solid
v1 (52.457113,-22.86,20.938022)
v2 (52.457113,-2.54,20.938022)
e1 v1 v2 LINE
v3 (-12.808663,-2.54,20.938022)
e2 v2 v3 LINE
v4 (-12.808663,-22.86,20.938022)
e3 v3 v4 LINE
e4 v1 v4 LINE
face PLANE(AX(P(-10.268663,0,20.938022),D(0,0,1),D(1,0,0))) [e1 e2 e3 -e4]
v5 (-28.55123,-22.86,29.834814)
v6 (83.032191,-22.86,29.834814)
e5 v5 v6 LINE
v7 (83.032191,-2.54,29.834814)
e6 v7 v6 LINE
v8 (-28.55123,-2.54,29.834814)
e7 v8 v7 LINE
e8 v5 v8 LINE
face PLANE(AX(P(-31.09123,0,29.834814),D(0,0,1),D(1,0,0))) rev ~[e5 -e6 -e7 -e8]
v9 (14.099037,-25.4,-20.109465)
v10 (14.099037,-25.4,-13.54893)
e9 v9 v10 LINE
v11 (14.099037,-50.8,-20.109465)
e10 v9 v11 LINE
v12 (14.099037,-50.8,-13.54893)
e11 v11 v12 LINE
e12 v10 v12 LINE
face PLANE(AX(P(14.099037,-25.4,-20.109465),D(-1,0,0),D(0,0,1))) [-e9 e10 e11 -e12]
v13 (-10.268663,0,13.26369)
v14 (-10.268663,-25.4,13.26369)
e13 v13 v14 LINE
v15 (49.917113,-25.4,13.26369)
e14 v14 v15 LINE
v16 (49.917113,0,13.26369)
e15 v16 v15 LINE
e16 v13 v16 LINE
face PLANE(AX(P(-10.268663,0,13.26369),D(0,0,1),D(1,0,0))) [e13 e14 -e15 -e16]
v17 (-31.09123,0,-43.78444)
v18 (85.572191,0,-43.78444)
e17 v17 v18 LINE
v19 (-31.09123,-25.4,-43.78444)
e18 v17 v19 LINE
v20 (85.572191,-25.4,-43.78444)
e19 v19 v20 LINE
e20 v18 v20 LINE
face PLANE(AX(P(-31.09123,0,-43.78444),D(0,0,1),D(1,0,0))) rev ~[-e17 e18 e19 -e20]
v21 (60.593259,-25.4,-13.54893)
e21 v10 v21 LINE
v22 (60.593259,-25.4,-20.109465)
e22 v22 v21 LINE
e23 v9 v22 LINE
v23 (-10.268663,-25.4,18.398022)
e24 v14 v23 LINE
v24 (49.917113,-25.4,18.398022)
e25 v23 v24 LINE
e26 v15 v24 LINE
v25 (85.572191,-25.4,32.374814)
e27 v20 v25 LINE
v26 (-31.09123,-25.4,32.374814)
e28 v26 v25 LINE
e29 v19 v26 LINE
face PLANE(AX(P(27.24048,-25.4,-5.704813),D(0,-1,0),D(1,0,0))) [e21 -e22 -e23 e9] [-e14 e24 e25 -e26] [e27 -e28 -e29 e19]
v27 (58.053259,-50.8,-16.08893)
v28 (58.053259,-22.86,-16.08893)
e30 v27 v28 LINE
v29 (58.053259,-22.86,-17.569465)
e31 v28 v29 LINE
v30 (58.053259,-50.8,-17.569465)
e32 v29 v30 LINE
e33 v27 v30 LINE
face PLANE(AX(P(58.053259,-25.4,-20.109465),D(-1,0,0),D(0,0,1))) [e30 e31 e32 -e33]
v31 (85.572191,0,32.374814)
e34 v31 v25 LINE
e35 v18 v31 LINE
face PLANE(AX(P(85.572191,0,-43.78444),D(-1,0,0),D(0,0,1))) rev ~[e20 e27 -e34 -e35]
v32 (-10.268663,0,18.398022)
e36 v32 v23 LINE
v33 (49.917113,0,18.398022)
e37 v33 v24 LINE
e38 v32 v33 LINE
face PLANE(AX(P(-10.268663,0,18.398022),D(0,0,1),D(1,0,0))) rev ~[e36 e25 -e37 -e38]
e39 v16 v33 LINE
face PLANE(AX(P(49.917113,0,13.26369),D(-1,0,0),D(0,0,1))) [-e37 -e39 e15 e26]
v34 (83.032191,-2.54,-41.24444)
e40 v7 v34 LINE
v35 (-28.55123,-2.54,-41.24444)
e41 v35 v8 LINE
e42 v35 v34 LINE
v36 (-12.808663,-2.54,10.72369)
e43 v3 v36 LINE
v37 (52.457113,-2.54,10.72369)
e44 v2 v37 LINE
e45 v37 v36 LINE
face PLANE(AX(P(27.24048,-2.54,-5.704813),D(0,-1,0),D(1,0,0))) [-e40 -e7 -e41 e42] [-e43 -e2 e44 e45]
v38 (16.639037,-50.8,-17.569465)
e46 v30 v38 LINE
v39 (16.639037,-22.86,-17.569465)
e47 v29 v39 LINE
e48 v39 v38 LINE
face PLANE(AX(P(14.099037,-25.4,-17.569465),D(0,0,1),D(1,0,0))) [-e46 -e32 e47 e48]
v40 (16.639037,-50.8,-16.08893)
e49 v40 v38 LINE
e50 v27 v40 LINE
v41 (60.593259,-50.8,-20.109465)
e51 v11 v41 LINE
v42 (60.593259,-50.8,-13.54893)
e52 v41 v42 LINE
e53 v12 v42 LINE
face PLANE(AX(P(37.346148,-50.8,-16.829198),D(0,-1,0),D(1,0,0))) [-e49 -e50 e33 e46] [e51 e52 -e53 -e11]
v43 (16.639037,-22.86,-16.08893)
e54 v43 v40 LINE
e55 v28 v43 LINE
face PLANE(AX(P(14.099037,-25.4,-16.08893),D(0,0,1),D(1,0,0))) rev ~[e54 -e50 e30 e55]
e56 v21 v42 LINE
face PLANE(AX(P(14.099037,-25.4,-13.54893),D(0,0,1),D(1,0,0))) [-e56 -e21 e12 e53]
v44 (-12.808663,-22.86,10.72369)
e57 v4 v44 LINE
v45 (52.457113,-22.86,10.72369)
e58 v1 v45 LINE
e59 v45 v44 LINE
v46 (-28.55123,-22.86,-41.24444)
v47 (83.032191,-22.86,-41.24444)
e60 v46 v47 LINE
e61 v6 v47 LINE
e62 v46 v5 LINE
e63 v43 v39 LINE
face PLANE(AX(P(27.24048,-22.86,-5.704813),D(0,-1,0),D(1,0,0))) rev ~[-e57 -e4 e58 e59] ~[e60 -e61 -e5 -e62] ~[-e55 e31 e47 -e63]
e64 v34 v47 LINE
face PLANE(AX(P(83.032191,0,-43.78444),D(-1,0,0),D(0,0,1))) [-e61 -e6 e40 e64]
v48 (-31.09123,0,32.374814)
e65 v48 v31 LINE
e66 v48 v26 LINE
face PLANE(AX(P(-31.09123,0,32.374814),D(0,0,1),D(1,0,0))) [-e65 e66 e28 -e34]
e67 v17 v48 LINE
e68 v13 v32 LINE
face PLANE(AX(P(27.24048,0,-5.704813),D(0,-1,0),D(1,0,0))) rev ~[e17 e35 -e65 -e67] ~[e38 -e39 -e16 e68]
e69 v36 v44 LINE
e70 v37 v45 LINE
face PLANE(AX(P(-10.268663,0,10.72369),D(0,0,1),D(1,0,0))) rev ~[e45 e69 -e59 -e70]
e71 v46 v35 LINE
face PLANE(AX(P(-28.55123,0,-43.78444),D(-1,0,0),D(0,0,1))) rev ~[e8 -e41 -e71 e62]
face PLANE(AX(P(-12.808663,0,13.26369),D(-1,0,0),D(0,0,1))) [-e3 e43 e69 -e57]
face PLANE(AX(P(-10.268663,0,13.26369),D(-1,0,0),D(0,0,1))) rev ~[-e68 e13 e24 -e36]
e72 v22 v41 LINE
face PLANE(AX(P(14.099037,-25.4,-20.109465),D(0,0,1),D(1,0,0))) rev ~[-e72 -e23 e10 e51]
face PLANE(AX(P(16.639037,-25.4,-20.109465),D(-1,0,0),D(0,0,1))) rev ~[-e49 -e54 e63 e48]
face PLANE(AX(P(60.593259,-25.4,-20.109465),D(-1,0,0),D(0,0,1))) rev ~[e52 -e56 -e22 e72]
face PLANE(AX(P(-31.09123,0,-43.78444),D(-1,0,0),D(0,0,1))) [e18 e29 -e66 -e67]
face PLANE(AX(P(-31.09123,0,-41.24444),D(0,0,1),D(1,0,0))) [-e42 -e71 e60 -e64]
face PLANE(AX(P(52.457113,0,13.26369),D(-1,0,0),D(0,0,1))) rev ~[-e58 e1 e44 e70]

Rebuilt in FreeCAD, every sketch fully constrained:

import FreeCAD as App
import Part
import Sketcher
from FreeCAD import Vector
Q = App.Units.Quantity


def faces_at(feature, points):
    """Names of the faces that lie closest to the given points."""
    faces = feature.Shape.Faces
    near = lambda p: min(range(len(faces)), key=lambda i: faces[i].distToShape(Part.Vertex(*p))[0])
    return sorted({f"Face{near(p) + 1}" for p in points})

doc = App.newDocument("Part")
body = doc.addObject("PartDesign::Body", "Body")

# Sketch on XZ plane
sketch1 = body.newObject("Sketcher::SketchObject", "Sketch")
sketch1.AttachmentSupport = (doc.getObject("XZ_Plane"), [""])
sketch1.MapMode = "FlatFace"
sketch1.addGeometry([
    Part.LineSegment(Vector(-31, 32, 0), Vector(-31, -44, 0)),  # 0
    Part.LineSegment(Vector(-31, -44, 0), Vector(86, -44, 0)),  # 1
    Part.LineSegment(Vector(86, -44, 0), Vector(86, 32, 0)),  # 2
    Part.LineSegment(Vector(86, 32, 0), Vector(-31, 32, 0)),  # 3
    Part.LineSegment(Vector(50, 13, 0), Vector(-10, 13, 0)),  # 4
    Part.LineSegment(Vector(-10, 13, 0), Vector(-10, 18, 0)),  # 5
    Part.LineSegment(Vector(-10, 18, 0), Vector(50, 18, 0)),  # 6
    Part.LineSegment(Vector(50, 18, 0), Vector(50, 13, 0)),  # 7
], False)
sketch1.addConstraint([
    Sketcher.Constraint("Coincident", 0, 2, 1, 1),
    Sketcher.Constraint("Coincident", 1, 2, 2, 1),
    Sketcher.Constraint("Coincident", 2, 2, 3, 1),
    Sketcher.Constraint("Coincident", 3, 2, 0, 1),
    Sketcher.Constraint("Coincident", 4, 2, 5, 1),
    Sketcher.Constraint("Coincident", 5, 2, 6, 1),
    Sketcher.Constraint("Coincident", 6, 2, 7, 1),
    Sketcher.Constraint("Coincident", 7, 2, 4, 1),
    Sketcher.Constraint("Vertical", 0),
    Sketcher.Constraint("Horizontal", 1),
    Sketcher.Constraint("Vertical", 2),
    Sketcher.Constraint("Horizontal", 3),
    Sketcher.Constraint("Horizontal", 4),
    Sketcher.Constraint("Vertical", 5),
    Sketcher.Constraint("Horizontal", 6),
    Sketcher.Constraint("Vertical", 7),
    Sketcher.Constraint("DistanceX", 1, 1, 1, 2, Q("116.663421 mm")),
    Sketcher.Constraint("DistanceY", 5, 1, 5, 2, Q("5.134332 mm")),
    Sketcher.Constraint("DistanceX", 4, 2, 4, 1, Q("60.185776 mm")),
    Sketcher.Constraint("DistanceY", 0, 2, 0, 1, Q("76.159254 mm")),
    Sketcher.Constraint("DistanceX", 0, 2, -1, 1, Q("31.09123 mm")),
    Sketcher.Constraint("DistanceY", 0, 2, -1, 1, Q("43.78444 mm")),
    Sketcher.Constraint("DistanceY", -1, 1, 4, 2, Q("13.26369 mm")),
    Sketcher.Constraint("DistanceX", 4, 2, -1, 1, Q("10.268663 mm")),
])
pad1 = body.newObject("PartDesign::Pad", "Pad")
pad1.Profile = sketch1
pad1.Length = Q("1 in")

# Sketch on XZ plane
sketch2 = body.newObject("Sketcher::SketchObject", "Sketch001")
sketch2.AttachmentSupport = (doc.getObject("XZ_Plane"), [""])
sketch2.MapMode = "FlatFace"
sketch2.AttachmentOffset = App.Placement(Vector(0, 0, 1 * 25.4), App.Rotation())
sketch2.addGeometry([
    Part.LineSegment(Vector(14, -14, 0), Vector(14, -20, 0)),
    Part.LineSegment(Vector(14, -20, 0), Vector(61, -20, 0)),
    Part.LineSegment(Vector(61, -20, 0), Vector(61, -14, 0)),
    Part.LineSegment(Vector(61, -14, 0), Vector(14, -14, 0)),
], False)
sketch2.addConstraint([
    Sketcher.Constraint("Coincident", 0, 2, 1, 1),
    Sketcher.Constraint("Coincident", 1, 2, 2, 1),
    Sketcher.Constraint("Coincident", 2, 2, 3, 1),
    Sketcher.Constraint("Coincident", 3, 2, 0, 1),
    Sketcher.Constraint("Vertical", 0),
    Sketcher.Constraint("Horizontal", 1),
    Sketcher.Constraint("Vertical", 2),
    Sketcher.Constraint("Horizontal", 3),
    Sketcher.Constraint("DistanceX", 1, 1, 1, 2, Q("46.494221 mm")),
    Sketcher.Constraint("DistanceY", 0, 2, 0, 1, Q("6.560535 mm")),
    Sketcher.Constraint("DistanceX", -1, 1, 1, 2, Q("60.593259 mm")),
    Sketcher.Constraint("DistanceY", 2, 2, -1, 1, Q("13.54893 mm")),
])
pad2 = body.newObject("PartDesign::Pad", "Pad001")
pad2.Profile = sketch2
pad2.Length = Q("1 in")
doc.recompute()

thickness = body.newObject("PartDesign::Thickness", "Thickness")
thickness.Base = (pad2, faces_at(pad2, [(37.346, -50.8, -16.829)]))
thickness.Value = Q("0.1 in")
thickness.Reversed = True
thickness.Join = "Intersection"

doc.recompute()
